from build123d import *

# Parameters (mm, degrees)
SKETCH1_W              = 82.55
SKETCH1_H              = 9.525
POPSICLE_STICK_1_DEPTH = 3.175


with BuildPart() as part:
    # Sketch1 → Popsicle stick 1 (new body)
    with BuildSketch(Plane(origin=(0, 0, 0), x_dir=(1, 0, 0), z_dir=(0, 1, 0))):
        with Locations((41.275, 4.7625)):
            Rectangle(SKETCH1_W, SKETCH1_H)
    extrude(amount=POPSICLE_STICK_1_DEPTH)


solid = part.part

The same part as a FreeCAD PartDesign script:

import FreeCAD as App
import Part
import Sketcher
from FreeCAD import Vector
Q = App.Units.Quantity


def add_polygon(sketch, points):
    """Adds a closed chain of lines whose ends are joined by coincident constraints."""
    first, n = sketch.GeometryCount, len(points)
    for a, b in zip(points, points[1:] + points[:1]):
        sketch.addGeometry(Part.LineSegment(App.Vector(*a, 0), App.Vector(*b, 0)), False)
    for i in range(n):
        sketch.addConstraint(Sketcher.Constraint("Coincident", first + i, 2, first + (i + 1) % n, 1))

doc = App.newDocument("Part")
params = doc.addObject("Spreadsheet::Sheet", "Params")
for row, (alias, value) in enumerate([
    ("sketch1_width", "3.25 in"),
    ("sketch1_height", "0.375 in"),
    ("pad1_length", "0.125 in"),
], start=1):
    params.set(f"A{row}", alias)
    params.set(f"B{row}", "=" + value)
    params.setAlias(f"B{row}", alias)

body = doc.addObject("PartDesign::Body", "Body")

# Sketch on XZ plane
sketch1 = body.newObject("Sketcher::SketchObject", "Sketch")
sketch1.AttachmentSupport = (doc.getObject("XZ_Plane"), [""])
sketch1.MapMode = "FlatFace"
add_polygon(sketch1, [(0, -10), (0, 0), (83, 0), (83, -10)])  # lines 0-3
sketch1.addConstraint(Sketcher.Constraint("Vertical", 0))
sketch1.addConstraint(Sketcher.Constraint("Horizontal", 1))
sketch1.addConstraint(Sketcher.Constraint("Vertical", 2))
sketch1.addConstraint(Sketcher.Constraint("Horizontal", 3))
sketch1.addConstraint(Sketcher.Constraint("Coincident", 0, 2, -1, 1))
sketch1.addConstraint(Sketcher.Constraint("DistanceX", 1, 1, 1, 2, Q("3.25 in")))
sketch1.addConstraint(Sketcher.Constraint("DistanceY", 0, 1, 0, 2, Q("0.375 in")))
sketch1.setExpression("Constraints[9]", "Params.sketch1_width")
sketch1.setExpression("Constraints[10]", "Params.sketch1_height")
pad1 = body.newObject("PartDesign::Pad", "Pad")
pad1.Profile = sketch1
pad1.setExpression("Length", "Params.pad1_length")
pad1.Reversed = True

doc.recompute()
